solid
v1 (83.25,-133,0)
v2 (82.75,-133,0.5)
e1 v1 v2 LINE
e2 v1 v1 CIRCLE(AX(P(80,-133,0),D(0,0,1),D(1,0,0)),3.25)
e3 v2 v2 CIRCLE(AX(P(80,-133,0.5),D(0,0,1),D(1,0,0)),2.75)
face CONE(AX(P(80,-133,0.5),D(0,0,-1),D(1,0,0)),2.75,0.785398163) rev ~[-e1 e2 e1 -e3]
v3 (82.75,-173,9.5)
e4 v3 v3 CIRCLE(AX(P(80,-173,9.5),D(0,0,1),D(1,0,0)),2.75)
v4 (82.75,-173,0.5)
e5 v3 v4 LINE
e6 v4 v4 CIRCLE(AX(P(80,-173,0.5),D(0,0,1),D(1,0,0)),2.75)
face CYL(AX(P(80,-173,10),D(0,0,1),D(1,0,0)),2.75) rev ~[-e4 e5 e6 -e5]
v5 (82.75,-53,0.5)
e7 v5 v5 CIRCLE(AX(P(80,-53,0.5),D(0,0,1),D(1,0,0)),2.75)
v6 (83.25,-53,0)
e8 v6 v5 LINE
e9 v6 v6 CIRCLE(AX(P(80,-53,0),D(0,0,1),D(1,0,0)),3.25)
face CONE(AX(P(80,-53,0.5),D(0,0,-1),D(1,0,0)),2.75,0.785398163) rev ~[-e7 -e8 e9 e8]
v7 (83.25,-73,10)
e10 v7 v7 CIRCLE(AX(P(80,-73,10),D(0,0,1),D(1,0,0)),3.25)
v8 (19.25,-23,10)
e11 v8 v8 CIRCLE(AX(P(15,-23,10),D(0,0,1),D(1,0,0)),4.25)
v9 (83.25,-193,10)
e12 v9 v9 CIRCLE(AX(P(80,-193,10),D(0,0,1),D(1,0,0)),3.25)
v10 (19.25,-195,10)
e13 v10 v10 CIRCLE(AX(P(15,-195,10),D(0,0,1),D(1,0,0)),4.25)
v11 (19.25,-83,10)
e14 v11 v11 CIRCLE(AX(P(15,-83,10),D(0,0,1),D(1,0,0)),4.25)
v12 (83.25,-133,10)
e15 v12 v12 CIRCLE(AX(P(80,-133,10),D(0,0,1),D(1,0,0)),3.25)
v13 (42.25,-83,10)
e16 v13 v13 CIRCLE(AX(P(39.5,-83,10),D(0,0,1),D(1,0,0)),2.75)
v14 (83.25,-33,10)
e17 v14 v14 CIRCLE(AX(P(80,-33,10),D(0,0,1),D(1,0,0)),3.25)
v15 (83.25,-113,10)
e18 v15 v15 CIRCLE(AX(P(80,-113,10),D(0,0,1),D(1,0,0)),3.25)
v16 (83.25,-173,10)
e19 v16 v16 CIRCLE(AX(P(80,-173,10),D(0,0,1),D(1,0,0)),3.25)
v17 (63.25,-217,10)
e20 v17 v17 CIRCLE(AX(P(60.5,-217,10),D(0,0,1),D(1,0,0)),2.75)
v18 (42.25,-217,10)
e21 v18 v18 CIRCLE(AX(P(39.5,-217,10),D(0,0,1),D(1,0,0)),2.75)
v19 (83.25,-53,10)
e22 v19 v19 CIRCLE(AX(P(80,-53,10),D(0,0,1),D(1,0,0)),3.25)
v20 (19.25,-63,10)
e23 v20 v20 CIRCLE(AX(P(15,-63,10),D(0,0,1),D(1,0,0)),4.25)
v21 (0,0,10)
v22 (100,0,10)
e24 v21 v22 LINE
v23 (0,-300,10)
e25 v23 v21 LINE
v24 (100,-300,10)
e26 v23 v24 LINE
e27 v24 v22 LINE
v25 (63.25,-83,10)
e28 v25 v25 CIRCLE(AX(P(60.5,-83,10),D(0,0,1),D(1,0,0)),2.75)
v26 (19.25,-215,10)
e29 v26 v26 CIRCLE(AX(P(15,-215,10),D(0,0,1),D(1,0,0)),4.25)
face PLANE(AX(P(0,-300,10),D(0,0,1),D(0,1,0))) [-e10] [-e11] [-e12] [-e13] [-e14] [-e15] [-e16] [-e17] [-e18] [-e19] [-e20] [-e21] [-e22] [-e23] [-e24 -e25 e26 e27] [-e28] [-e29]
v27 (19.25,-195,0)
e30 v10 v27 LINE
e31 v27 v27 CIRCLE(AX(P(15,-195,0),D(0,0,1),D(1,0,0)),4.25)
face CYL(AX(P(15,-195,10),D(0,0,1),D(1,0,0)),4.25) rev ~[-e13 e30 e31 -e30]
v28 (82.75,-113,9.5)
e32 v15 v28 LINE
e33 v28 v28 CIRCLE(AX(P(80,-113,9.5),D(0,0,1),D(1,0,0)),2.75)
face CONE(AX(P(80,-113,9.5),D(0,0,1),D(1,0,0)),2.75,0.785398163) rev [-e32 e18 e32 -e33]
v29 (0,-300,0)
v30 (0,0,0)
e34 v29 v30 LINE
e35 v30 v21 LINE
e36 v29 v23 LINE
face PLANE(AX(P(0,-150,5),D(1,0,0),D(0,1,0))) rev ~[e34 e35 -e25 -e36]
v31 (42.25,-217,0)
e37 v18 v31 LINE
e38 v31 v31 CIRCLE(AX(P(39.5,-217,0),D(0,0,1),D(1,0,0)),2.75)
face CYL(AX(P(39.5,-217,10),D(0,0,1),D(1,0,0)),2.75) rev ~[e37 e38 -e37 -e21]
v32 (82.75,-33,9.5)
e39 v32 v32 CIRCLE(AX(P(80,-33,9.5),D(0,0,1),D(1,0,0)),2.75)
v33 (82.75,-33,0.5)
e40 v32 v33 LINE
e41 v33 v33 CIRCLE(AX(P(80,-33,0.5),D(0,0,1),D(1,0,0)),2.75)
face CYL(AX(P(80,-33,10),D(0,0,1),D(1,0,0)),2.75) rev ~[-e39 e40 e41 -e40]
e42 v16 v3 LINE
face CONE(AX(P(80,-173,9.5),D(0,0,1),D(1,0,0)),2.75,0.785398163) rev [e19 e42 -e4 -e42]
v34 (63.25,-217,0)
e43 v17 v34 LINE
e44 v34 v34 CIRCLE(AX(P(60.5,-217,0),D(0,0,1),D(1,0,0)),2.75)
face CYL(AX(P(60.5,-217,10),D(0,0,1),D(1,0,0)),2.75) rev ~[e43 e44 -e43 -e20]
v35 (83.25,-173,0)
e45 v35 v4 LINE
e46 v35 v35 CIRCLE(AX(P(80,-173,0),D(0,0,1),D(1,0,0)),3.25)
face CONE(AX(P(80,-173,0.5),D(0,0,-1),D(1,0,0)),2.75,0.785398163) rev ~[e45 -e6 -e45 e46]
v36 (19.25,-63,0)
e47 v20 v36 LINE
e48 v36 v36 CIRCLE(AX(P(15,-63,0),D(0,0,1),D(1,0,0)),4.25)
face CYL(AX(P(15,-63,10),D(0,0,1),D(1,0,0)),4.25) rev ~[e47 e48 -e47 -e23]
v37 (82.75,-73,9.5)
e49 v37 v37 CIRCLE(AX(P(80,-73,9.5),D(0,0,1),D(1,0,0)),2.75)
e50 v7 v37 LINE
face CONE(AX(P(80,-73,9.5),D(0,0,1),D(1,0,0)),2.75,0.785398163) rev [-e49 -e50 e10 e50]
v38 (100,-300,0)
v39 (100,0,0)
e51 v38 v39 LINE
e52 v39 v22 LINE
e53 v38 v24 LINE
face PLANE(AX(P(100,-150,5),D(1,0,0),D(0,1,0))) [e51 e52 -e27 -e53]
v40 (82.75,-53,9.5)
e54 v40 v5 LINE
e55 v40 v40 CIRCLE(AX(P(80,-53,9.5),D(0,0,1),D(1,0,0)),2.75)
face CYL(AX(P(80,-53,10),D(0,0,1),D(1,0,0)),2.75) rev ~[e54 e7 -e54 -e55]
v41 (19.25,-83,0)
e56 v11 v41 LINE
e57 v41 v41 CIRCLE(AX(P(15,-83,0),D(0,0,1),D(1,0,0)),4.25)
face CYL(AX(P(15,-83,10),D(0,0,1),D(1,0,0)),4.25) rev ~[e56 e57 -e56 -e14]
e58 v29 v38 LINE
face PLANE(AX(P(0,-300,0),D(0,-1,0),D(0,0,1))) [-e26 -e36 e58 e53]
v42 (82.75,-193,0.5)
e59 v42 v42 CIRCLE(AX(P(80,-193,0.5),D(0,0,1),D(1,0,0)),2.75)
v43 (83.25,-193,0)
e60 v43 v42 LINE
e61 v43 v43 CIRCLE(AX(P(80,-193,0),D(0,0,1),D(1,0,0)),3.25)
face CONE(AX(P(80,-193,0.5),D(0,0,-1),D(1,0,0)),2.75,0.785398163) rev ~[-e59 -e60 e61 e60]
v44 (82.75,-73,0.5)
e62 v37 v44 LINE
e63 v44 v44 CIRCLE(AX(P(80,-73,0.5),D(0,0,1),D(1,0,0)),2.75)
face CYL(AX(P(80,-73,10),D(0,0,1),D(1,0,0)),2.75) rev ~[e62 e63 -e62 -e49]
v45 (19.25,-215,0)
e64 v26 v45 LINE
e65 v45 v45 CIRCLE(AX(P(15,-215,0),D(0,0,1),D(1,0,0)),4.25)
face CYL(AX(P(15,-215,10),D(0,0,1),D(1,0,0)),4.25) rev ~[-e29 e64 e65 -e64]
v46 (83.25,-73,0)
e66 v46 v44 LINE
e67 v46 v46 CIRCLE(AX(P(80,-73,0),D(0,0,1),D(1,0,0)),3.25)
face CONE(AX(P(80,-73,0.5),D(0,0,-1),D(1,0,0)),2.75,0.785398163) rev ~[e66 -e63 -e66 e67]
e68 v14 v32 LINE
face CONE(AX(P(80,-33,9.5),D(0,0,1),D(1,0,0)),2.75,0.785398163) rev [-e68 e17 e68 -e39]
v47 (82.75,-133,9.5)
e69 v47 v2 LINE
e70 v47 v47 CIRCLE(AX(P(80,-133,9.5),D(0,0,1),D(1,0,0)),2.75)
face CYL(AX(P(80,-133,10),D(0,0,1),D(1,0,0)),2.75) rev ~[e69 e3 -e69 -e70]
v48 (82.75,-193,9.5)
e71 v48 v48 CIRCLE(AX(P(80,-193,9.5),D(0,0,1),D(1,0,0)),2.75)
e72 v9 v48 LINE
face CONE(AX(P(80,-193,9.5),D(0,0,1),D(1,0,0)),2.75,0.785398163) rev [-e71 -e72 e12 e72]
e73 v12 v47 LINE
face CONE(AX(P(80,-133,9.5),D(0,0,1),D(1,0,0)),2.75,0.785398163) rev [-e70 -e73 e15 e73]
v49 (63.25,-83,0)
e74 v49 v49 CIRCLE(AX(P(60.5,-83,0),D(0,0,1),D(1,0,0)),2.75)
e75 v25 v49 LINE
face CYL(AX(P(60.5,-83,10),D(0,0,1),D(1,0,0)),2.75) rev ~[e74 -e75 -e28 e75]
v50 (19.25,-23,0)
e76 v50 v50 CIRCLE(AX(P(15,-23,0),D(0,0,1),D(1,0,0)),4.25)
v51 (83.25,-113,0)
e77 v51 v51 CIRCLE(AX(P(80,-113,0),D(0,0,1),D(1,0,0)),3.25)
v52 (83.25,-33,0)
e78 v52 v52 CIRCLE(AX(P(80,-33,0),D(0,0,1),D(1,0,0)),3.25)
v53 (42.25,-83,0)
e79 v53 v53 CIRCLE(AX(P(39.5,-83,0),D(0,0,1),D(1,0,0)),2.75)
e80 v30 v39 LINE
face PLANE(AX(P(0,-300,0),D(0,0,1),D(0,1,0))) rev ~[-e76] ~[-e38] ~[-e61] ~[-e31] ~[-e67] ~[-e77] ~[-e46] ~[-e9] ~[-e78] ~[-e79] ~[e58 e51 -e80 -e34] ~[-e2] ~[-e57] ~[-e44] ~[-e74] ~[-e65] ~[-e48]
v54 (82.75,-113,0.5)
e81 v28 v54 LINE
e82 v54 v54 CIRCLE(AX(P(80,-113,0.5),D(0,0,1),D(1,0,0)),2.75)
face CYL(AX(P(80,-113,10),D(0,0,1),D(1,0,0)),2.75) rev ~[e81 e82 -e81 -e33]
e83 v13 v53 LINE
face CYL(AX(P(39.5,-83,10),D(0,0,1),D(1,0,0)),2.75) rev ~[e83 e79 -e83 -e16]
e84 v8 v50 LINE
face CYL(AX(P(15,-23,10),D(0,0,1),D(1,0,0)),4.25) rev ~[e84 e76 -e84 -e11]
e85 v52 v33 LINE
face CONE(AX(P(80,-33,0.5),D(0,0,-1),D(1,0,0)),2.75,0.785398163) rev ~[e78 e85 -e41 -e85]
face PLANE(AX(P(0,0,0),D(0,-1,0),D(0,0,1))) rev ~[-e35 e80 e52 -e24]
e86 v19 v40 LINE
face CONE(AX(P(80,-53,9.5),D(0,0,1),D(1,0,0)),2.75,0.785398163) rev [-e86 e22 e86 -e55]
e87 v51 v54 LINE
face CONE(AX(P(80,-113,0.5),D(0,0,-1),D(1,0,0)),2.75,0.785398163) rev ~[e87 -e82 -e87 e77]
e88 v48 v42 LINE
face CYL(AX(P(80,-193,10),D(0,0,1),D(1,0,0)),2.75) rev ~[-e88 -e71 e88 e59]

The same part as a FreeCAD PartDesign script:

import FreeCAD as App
import Part
import Sketcher
from FreeCAD import Vector
Q = App.Units.Quantity


def edges_at(feature, points):
    """Names of the edges that pass closest to the given points."""
    edges = feature.Shape.Edges
    near = lambda p: min(range(len(edges)), key=lambda i: edges[i].distToShape(Part.Vertex(*p))[0])
    return sorted({f"Edge{near(p) + 1}" for p in points})

doc = App.newDocument("Part")
body = doc.addObject("PartDesign::Body", "Body")

sketch1 = doc.addObject("Sketcher::SketchObject", "Sketch")
body.addObject(sketch1)
sketch1.AttachmentSupport = (doc.YZ_Plane, [""])
sketch1.MapMode = "FlatFace"
sketch1.addGeometry(Part.LineSegment(Vector(-300, 10, 0), Vector(-300, 0, 0)), False)
sketch1.addGeometry(Part.LineSegment(Vector(-300, 0, 0), Vector(0, 0, 0)), False)
sketch1.addGeometry(Part.LineSegment(Vector(0, 0, 0), Vector(0, 10, 0)), False)
sketch1.addGeometry(Part.LineSegment(Vector(0, 10, 0), Vector(-300, 10, 0)), False)
sketch1.addConstraint(Sketcher.Constraint("Coincident", 0, 2, 1, 1))
sketch1.addConstraint(Sketcher.Constraint("Coincident", 1, 2, 2, 1))
sketch1.addConstraint(Sketcher.Constraint("Coincident", 2, 2, 3, 1))
sketch1.addConstraint(Sketcher.Constraint("Coincident", 3, 2, 0, 1))
sketch1.addConstraint(Sketcher.Constraint("Vertical", 0))
sketch1.addConstraint(Sketcher.Constraint("Horizontal", 1))
sketch1.addConstraint(Sketcher.Constraint("Vertical", 2))
sketch1.addConstraint(Sketcher.Constraint("Horizontal", 3))
sketch1.addConstraint(Sketcher.Constraint("Coincident", 1, 2, -1, 1))
sketch1.addConstraint(Sketcher.Constraint("DistanceX", 1, 1, 1, 2, Q("300 mm")))
sketch1.addConstraint(Sketcher.Constraint("DistanceY", 0, 2, 0, 1, Q("10 mm")))
pad1 = doc.addObject("PartDesign::Pad", "Pad")
body.addObject(pad1)
pad1.Profile = sketch1
pad1.Length = 100

sketch2 = doc.addObject("Sketcher::SketchObject", "Sketch001")
body.addObject(sketch2)
sketch2.AttachmentSupport = (doc.XY_Plane, [""])
sketch2.MapMode = "FlatFace"
sketch2.AttachmentOffset = App.Placement(Vector(0, 0, 10), App.Rotation())
sketch2.addGeometry(Part.Circle(Vector(60.5, -83, 0), Vector(0, 0, 1), 2.8), False)
sketch2.addGeometry(Part.Circle(Vector(39.5, -83, 0), Vector(0, 0, 1), 2.8), False)
sketch2.addGeometry(Part.Circle(Vector(39.5, -217, 0), Vector(0, 0, 1), 2.8), False)
sketch2.addGeometry(Part.Circle(Vector(60.5, -217, 0), Vector(0, 0, 1), 2.8), False)
sketch2.addGeometry(Part.Circle(Vector(15, -215, 0), Vector(0, 0, 1), 4.2), False)
sketch2.addGeometry(Part.Circle(Vector(15, -195, 0), Vector(0, 0, 1), 4.2), False)
sketch2.addGeometry(Part.Circle(Vector(15, -83, 0), Vector(0, 0, 1), 4.2), False)
sketch2.addGeometry(Part.Circle(Vector(15, -63, 0), Vector(0, 0, 1), 4.2), False)
sketch2.addGeometry(Part.Circle(Vector(15, -23, 0), Vector(0, 0, 1), 4.2), False)
sketch2.addConstraint(Sketcher.Constraint("Equal", 0, 1))
sketch2.addConstraint(Sketcher.Constraint("Equal", 1, 2))
sketch2.addConstraint(Sketcher.Constraint("Equal", 2, 3))
sketch2.addConstraint(Sketcher.Constraint("Equal", 4, 5))
sketch2.addConstraint(Sketcher.Constraint("Equal", 5, 6))
sketch2.addConstraint(Sketcher.Constraint("Equal", 6, 7))
sketch2.addConstraint(Sketcher.Constraint("Equal", 7, 8))
sketch2.addConstraint(Sketcher.Constraint("Horizontal", 0, 3, 1, 3))
sketch2.addConstraint(Sketcher.Constraint("Horizontal", 2, 3, 3, 3))
sketch2.addConstraint(Sketcher.Constraint("Horizontal", 1, 3, 6, 3))
sketch2.addConstraint(Sketcher.Constraint("Vertical", 1, 3, 2, 3))
sketch2.addConstraint(Sketcher.Constraint("Vertical", 0, 3, 3, 3))
sketch2.addConstraint(Sketcher.Constraint("Vertical", 4, 3, 5, 3))
sketch2.addConstraint(Sketcher.Constraint("Vertical", 5, 3, 6, 3))
sketch2.addConstraint(Sketcher.Constraint("Vertical", 6, 3, 7, 3))
sketch2.addConstraint(Sketcher.Constraint("Vertical", 7, 3, 8, 3))
sketch2.addConstraint(Sketcher.Constraint("Diameter", 0, Q("5.5 mm")))
sketch2.addConstraint(Sketcher.Constraint("Diameter", 4, Q("8.5 mm")))
sketch2.addConstraint(Sketcher.Constraint("DistanceY", 0, 3, -1, 1, Q("83 mm")))
sketch2.addConstraint(Sketcher.Constraint("DistanceY", 2, 3, -1, 1, Q("217 mm")))
sketch2.addConstraint(Sketcher.Constraint("DistanceX", -1, 1, 4, 3, Q("15 mm")))
sketch2.addConstraint(Sketcher.Constraint("DistanceY", 4, 3, -1, 1, Q("215 mm")))
sketch2.addConstraint(Sketcher.Constraint("DistanceY", 5, 3, -1, 1, Q("195 mm")))
sketch2.addConstraint(Sketcher.Constraint("DistanceY", 7, 3, -1, 1, Q("63 mm")))
sketch2.addConstraint(Sketcher.Constraint("DistanceY", 8, 3, -1, 1, Q("23 mm")))
sketch2.addConstraint(Sketcher.Constraint("DistanceX", 1, 3, 0, 3, Q("21 mm")))
sketch2.addConstraint(Sketcher.Constraint("DistanceX", -1, 1, 0, 3, Q("60.5 mm")))
pocket1 = doc.addObject("PartDesign::Pocket", "Pocket")
body.addObject(pocket1)
pocket1.Profile = sketch2
pocket1.Type = "ThroughAll"

sketch3 = doc.addObject("Sketcher::SketchObject", "Sketch002")
body.addObject(sketch3)
sketch3.AttachmentSupport = (doc.XY_Plane, [""])
sketch3.MapMode = "FlatFace"
sketch3.AttachmentOffset = App.Placement(Vector(0, 0, 10), App.Rotation())
sketch3.addGeometry(Part.Circle(Vector(80, -193, 0), Vector(0, 0, 1), 2.8), False)
sketch3.addGeometry(Part.Circle(Vector(80, -173, 0), Vector(0, 0, 1), 2.8), False)
sketch3.addGeometry(Part.Circle(Vector(80, -133, 0), Vector(0, 0, 1), 2.8), False)
sketch3.addGeometry(Part.Circle(Vector(80, -113, 0), Vector(0, 0, 1), 2.8), False)
sketch3.addGeometry(Part.Circle(Vector(80, -73, 0), Vector(0, 0, 1), 2.8), False)
sketch3.addGeometry(Part.Circle(Vector(80, -53, 0), Vector(0, 0, 1), 2.8), False)
sketch3.addGeometry(Part.Circle(Vector(80, -33, 0), Vector(0, 0, 1), 2.8), False)
sketch3.addConstraint(Sketcher.Constraint("Equal", 0, 1))
sketch3.addConstraint(Sketcher.Constraint("Equal", 1, 2))
sketch3.addConstraint(Sketcher.Constraint("Equal", 2, 3))
sketch3.addConstraint(Sketcher.Constraint("Equal", 3, 4))
sketch3.addConstraint(Sketcher.Constraint("Equal", 4, 5))
sketch3.addConstraint(Sketcher.Constraint("Equal", 5, 6))
sketch3.addConstraint(Sketcher.Constraint("Vertical", 0, 3, 1, 3))
sketch3.addConstraint(Sketcher.Constraint("Vertical", 1, 3, 2, 3))
sketch3.addConstraint(Sketcher.Constraint("Vertical", 2, 3, 3, 3))
sketch3.addConstraint(Sketcher.Constraint("Vertical", 3, 3, 4, 3))
sketch3.addConstraint(Sketcher.Constraint("Vertical", 4, 3, 5, 3))
sketch3.addConstraint(Sketcher.Constraint("Vertical", 5, 3, 6, 3))
sketch3.addConstraint(Sketcher.Constraint("Diameter", 0, Q("5.5 mm")))
sketch3.addConstraint(Sketcher.Constraint("DistanceX", -1, 1, 0, 3, Q("80 mm")))
sketch3.addConstraint(Sketcher.Constraint("DistanceY", 0, 3, -1, 1, Q("193 mm")))
sketch3.addConstraint(Sketcher.Constraint("DistanceY", 1, 3, -1, 1, Q("173 mm")))
sketch3.addConstraint(Sketcher.Constraint("DistanceY", 2, 3, -1, 1, Q("133 mm")))
sketch3.addConstraint(Sketcher.Constraint("DistanceY", 3, 3, -1, 1, Q("113 mm")))
sketch3.addConstraint(Sketcher.Constraint("DistanceY", 4, 3, -1, 1, Q("73 mm")))
sketch3.addConstraint(Sketcher.Constraint("DistanceY", 5, 3, -1, 1, Q("53 mm")))
sketch3.addConstraint(Sketcher.Constraint("DistanceY", 6, 3, -1, 1, Q("33 mm")))
pocket2 = doc.addObject("PartDesign::Pocket", "Pocket001")
body.addObject(pocket2)
pocket2.Profile = sketch3
pocket2.Type = "ThroughAll"
doc.recompute()

chamfer = doc.addObject("PartDesign::Chamfer", "Chamfer")
body.addObject(chamfer)
chamfer.Base = (pocket2, edges_at(pocket2, [
    (77.25, -53, 10),
    (82.75, -53, 5),
    (77.25, -53, 0),
    (77.25, -73, 10),
    (82.75, -73, 5),
    (77.25, -73, 0),
    (77.25, -113, 10),
    (82.75, -113, 5),
    (77.25, -113, 0),
    (77.25, -133, 10),
    (82.75, -133, 5),
    (77.25, -133, 0),
    (77.25, -173, 10),
    (82.75, -173, 5),
    (77.25, -173, 0),
    (77.25, -193, 10),
    (82.75, -193, 5),
    (77.25, -193, 0),
    (77.25, -33, 10),
    (82.75, -33, 5),
    (77.25, -33, 0),
]))
chamfer.Size = 0.5

doc.recompute()
